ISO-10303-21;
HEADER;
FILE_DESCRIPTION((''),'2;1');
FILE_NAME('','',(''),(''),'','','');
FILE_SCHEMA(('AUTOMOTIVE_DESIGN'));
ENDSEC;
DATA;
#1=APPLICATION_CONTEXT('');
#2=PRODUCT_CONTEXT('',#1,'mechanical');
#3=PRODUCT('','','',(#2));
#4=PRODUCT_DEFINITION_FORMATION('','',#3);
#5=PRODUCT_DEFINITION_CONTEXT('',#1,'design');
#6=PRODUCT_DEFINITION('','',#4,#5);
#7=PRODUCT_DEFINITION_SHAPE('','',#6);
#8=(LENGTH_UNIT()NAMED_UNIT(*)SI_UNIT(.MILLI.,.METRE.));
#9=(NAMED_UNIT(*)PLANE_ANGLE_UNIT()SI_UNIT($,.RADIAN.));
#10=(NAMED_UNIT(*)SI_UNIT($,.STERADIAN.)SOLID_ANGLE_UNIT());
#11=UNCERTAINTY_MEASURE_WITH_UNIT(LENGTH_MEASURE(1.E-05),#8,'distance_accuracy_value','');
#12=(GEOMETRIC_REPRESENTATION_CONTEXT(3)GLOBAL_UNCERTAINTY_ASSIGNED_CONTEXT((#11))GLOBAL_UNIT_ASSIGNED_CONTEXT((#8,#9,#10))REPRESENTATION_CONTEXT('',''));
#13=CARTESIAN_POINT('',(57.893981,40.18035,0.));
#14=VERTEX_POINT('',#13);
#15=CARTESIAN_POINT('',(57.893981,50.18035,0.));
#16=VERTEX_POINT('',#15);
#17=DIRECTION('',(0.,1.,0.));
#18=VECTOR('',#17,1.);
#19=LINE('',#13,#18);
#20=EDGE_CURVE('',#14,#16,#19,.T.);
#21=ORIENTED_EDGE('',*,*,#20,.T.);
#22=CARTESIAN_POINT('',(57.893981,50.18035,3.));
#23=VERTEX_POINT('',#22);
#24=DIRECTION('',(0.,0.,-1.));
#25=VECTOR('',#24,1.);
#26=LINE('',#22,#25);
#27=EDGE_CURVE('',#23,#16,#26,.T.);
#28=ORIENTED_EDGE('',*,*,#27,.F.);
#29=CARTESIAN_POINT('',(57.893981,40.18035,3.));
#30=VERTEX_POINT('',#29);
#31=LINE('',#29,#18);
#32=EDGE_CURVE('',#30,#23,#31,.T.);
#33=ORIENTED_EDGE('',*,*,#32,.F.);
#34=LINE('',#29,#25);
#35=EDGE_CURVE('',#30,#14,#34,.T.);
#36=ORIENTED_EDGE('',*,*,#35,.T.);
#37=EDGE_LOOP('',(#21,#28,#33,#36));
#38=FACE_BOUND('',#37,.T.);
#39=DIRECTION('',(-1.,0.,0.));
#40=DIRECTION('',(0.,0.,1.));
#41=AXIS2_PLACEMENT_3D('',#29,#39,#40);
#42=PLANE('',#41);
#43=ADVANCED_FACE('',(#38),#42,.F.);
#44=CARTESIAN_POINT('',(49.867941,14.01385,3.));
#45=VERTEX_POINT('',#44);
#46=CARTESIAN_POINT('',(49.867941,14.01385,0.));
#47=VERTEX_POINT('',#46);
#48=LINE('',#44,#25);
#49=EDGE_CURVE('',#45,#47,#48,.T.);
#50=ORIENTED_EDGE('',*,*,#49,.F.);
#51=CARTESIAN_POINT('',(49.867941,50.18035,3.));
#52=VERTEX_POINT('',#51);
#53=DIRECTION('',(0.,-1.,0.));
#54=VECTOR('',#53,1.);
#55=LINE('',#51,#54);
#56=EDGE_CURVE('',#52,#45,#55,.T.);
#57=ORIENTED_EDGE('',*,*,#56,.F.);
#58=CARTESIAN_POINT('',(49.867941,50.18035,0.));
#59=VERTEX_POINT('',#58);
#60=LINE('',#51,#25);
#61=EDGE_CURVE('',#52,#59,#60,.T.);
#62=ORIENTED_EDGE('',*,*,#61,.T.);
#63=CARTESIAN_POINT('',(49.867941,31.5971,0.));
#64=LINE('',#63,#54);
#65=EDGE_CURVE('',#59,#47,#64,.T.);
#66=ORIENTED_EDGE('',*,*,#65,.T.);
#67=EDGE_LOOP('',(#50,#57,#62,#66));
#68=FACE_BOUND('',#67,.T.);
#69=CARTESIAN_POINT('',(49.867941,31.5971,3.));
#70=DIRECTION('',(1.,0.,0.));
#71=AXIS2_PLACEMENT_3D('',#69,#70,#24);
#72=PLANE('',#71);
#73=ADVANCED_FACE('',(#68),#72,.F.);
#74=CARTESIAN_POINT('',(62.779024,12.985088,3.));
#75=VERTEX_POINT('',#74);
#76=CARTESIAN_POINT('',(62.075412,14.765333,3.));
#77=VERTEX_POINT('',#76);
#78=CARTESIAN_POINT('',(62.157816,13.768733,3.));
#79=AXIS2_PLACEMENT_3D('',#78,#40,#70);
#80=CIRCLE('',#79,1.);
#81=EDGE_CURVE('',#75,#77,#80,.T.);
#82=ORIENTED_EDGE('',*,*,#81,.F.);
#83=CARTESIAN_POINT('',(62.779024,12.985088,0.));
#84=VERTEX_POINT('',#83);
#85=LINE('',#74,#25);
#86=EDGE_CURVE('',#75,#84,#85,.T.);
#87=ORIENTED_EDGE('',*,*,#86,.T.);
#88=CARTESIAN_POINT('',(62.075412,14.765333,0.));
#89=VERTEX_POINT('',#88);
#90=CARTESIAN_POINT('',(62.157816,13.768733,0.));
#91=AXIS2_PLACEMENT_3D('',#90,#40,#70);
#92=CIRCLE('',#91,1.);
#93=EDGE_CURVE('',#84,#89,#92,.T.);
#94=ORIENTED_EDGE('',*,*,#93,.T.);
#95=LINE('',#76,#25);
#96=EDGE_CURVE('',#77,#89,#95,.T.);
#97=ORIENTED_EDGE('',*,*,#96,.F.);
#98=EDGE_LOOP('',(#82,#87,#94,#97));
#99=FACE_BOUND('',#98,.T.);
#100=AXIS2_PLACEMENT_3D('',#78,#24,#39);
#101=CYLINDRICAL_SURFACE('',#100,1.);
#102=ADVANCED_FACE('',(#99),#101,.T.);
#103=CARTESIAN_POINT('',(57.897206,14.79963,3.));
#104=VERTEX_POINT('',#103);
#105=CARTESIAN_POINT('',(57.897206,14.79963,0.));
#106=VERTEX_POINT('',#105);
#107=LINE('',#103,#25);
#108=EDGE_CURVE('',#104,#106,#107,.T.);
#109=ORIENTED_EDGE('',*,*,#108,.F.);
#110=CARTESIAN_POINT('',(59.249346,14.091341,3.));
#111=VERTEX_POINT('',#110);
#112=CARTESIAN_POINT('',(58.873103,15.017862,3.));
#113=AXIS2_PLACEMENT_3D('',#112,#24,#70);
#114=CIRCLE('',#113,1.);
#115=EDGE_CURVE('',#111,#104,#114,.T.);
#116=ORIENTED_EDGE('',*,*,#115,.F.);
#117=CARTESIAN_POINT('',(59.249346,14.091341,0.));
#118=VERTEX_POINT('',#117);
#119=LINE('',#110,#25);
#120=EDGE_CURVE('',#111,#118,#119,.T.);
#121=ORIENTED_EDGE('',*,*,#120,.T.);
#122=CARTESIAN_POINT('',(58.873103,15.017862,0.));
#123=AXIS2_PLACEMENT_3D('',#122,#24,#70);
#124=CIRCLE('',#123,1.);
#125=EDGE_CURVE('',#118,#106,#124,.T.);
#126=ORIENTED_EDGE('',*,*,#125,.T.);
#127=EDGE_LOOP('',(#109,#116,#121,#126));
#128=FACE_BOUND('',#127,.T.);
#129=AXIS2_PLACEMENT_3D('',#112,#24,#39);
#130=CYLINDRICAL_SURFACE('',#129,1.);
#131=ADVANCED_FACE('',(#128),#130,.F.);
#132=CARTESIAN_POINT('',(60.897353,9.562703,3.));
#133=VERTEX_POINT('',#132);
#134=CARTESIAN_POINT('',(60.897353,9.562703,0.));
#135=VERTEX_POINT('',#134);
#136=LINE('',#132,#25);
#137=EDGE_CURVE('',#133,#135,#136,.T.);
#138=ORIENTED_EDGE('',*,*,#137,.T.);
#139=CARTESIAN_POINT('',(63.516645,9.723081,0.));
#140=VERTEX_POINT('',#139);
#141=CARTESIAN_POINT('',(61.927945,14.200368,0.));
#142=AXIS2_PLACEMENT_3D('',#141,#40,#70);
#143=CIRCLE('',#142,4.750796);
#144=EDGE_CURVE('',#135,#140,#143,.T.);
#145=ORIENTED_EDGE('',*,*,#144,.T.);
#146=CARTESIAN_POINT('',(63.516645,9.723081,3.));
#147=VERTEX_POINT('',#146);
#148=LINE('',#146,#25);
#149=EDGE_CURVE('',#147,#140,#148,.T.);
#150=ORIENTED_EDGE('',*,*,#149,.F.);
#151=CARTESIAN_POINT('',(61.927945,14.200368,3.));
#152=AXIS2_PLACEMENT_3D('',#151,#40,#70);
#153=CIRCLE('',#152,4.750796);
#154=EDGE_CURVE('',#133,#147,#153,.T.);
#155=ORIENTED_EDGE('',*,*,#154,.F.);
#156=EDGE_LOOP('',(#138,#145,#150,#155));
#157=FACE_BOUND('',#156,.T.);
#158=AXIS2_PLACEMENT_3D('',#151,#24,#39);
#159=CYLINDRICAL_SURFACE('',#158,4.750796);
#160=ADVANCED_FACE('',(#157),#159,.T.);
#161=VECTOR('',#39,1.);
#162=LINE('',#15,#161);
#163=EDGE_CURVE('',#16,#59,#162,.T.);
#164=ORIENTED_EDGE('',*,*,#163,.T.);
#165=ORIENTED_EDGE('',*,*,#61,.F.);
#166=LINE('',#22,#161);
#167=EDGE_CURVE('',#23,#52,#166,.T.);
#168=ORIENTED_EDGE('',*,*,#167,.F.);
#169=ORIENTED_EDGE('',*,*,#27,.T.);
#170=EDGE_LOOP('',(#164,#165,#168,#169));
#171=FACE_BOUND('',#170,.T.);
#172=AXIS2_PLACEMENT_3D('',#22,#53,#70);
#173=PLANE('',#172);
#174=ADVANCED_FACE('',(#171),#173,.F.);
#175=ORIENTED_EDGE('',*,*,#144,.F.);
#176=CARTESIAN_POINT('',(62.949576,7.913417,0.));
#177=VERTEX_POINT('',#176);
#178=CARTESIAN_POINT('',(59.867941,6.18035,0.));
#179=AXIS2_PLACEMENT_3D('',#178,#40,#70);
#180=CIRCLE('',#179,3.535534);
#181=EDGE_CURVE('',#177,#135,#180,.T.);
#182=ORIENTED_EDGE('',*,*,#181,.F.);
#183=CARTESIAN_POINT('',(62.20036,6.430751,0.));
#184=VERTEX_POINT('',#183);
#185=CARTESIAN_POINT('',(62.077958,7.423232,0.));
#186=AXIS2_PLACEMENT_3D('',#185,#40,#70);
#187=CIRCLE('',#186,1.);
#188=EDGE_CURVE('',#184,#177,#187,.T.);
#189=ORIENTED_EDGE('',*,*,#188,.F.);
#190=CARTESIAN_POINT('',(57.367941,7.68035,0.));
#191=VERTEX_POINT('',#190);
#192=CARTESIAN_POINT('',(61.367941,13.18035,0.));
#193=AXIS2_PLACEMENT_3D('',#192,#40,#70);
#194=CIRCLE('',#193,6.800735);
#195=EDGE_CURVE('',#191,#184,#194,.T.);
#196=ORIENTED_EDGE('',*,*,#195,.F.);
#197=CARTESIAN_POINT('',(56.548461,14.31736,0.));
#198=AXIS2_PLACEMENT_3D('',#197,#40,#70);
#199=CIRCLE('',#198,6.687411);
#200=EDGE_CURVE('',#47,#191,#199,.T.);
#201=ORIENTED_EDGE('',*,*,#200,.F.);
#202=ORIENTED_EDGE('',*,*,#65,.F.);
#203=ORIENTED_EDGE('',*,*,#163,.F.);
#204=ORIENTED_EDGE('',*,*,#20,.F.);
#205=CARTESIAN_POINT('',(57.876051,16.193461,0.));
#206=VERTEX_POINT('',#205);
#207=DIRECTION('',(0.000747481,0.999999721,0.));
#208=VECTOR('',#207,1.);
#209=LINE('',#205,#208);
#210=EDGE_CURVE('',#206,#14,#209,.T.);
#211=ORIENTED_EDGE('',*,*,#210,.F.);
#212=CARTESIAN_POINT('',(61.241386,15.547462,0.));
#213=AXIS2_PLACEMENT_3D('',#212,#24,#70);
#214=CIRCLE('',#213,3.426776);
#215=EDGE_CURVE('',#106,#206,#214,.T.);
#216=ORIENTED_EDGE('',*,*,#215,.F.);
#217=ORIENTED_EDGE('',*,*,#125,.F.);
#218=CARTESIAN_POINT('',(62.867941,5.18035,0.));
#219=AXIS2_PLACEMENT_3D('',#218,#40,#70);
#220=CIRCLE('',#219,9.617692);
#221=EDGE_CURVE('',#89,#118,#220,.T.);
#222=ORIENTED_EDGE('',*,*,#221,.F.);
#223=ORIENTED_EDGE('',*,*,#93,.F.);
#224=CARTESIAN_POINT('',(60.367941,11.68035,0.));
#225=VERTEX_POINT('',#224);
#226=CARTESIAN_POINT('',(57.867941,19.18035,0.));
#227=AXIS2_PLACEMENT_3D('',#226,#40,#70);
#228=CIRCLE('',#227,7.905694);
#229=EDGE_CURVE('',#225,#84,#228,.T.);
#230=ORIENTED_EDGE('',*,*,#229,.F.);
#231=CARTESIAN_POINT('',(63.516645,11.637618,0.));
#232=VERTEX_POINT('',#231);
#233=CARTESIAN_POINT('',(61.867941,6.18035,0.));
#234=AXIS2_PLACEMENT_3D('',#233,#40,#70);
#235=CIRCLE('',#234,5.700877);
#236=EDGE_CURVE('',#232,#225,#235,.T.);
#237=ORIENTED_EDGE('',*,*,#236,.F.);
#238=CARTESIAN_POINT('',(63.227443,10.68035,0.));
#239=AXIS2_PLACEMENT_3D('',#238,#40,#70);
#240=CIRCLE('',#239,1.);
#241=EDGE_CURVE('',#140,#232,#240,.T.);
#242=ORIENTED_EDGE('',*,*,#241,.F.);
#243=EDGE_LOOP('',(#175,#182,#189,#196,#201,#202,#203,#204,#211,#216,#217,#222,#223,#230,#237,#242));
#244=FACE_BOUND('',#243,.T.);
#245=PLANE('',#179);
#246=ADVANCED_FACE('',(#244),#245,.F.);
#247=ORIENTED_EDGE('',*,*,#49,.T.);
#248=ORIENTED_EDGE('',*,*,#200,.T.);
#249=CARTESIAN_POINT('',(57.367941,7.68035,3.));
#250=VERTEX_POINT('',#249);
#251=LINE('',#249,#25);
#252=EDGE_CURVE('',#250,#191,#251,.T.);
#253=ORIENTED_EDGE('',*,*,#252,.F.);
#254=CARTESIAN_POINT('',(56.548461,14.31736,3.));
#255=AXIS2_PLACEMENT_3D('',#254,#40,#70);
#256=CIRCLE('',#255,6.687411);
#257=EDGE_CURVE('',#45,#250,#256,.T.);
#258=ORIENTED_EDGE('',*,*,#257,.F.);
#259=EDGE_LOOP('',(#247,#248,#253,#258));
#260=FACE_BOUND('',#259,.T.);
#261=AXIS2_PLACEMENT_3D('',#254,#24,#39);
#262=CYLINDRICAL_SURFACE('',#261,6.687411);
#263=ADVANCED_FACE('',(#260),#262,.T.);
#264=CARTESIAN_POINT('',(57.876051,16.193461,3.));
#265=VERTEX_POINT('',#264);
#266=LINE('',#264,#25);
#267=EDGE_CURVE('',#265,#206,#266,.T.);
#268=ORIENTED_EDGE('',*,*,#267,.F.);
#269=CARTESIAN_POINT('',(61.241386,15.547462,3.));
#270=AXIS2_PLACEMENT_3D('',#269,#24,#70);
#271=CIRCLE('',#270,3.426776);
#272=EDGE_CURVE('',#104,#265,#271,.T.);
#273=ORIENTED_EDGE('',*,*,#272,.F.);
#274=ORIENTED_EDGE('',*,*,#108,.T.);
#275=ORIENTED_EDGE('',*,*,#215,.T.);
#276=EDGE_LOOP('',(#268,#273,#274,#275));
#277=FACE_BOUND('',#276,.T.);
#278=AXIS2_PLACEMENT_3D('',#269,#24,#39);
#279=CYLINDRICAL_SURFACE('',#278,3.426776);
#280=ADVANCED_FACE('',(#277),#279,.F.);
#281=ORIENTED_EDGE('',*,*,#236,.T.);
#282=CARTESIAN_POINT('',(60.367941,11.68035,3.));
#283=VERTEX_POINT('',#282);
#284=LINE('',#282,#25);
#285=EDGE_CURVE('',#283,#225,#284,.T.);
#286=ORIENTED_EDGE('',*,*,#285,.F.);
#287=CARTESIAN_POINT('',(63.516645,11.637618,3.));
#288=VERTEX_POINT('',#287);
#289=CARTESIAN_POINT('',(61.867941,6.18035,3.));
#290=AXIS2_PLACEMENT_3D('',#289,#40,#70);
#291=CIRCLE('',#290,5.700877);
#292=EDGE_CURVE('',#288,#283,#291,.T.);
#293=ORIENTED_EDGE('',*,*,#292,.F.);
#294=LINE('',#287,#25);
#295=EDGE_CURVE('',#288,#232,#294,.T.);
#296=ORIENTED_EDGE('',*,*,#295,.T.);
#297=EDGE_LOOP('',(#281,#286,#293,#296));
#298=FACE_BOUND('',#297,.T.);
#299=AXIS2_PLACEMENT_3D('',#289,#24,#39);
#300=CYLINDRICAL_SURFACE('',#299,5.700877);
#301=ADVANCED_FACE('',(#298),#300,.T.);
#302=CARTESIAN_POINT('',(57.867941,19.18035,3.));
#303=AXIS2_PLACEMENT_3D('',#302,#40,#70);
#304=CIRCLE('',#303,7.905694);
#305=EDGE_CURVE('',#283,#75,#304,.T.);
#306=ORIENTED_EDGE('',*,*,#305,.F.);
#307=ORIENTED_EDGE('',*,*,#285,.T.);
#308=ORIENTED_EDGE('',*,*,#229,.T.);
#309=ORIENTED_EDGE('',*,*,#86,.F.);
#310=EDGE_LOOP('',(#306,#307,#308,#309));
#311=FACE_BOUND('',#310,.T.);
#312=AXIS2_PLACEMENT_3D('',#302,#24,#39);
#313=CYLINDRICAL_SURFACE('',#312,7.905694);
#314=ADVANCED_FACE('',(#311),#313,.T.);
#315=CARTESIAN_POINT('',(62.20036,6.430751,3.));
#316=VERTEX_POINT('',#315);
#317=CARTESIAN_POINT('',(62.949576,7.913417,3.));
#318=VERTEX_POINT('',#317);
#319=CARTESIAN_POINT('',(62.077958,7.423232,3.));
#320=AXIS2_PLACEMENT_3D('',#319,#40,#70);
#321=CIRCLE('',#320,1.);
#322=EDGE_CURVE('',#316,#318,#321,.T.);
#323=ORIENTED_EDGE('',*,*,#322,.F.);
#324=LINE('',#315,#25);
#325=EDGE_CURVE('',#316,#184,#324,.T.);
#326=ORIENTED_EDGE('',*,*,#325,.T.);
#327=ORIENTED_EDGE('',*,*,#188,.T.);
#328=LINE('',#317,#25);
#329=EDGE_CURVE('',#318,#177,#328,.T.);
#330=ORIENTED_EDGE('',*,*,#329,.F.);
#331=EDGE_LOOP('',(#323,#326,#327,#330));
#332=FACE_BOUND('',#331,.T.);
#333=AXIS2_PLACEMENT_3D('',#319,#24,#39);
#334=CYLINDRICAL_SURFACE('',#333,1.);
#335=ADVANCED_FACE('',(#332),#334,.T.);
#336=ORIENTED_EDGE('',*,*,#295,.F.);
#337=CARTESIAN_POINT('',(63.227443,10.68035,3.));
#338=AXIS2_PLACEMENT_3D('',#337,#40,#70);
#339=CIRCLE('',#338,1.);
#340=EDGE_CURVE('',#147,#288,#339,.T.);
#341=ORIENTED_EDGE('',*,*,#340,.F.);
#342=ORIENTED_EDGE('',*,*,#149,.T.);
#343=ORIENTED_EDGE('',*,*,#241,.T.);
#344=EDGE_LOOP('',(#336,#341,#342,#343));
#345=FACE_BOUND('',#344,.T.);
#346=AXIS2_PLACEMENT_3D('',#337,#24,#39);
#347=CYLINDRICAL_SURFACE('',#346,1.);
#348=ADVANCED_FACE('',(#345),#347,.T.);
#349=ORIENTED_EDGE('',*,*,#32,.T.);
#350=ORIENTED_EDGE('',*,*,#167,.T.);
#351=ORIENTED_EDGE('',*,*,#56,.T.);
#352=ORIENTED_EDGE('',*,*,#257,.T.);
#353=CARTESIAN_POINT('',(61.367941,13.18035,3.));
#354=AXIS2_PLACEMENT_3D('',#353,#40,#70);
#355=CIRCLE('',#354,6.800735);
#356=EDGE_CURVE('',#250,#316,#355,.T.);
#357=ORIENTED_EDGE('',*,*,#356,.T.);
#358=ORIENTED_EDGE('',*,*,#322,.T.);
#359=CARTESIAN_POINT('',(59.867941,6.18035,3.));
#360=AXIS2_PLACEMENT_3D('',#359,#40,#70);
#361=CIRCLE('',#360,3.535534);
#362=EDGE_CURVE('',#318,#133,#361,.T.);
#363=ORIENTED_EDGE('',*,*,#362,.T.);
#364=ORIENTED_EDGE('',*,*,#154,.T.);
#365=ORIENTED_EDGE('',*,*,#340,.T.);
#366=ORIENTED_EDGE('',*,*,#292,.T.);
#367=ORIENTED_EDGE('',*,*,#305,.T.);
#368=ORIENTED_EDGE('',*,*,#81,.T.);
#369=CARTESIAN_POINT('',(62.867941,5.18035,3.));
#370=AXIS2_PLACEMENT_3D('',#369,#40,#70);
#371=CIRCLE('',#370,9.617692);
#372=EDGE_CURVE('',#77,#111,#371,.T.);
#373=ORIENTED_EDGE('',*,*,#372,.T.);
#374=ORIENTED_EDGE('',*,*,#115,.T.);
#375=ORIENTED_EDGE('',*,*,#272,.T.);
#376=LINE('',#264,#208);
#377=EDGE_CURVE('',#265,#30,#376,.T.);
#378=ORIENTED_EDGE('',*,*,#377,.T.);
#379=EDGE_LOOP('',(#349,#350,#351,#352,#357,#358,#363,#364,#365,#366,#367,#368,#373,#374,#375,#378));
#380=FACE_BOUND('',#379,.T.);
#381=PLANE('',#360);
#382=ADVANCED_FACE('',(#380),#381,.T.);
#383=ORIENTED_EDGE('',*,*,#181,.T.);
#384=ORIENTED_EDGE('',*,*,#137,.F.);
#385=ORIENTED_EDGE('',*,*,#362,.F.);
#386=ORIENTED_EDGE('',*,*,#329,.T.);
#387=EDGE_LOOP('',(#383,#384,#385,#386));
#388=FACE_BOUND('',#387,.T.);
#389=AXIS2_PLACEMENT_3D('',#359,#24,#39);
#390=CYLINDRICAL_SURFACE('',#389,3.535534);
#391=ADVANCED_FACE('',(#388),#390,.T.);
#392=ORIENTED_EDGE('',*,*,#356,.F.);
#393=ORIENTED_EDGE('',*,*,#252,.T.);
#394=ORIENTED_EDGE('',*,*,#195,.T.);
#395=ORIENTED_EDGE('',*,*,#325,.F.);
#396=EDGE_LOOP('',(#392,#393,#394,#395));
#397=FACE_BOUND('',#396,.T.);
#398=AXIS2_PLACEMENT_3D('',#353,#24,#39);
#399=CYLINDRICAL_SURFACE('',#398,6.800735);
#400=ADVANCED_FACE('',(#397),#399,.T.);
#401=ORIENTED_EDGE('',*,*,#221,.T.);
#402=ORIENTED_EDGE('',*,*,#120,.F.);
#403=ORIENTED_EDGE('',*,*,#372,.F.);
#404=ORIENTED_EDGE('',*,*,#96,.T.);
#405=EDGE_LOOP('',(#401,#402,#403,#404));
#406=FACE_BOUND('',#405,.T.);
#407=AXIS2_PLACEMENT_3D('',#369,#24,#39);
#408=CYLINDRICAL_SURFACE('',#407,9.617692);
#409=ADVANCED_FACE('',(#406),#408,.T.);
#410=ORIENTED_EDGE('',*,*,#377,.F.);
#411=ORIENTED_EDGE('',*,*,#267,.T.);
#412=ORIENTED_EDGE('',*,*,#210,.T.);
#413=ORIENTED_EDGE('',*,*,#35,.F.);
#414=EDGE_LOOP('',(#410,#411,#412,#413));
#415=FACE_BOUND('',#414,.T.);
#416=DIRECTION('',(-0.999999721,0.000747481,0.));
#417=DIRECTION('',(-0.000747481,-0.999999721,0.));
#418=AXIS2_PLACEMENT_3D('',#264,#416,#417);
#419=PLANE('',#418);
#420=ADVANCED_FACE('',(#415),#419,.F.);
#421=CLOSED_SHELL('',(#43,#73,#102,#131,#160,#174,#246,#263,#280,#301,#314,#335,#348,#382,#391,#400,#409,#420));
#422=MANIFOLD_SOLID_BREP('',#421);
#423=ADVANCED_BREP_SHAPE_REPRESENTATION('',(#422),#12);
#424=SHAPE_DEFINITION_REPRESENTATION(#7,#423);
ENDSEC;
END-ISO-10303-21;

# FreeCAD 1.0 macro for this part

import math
import FreeCAD as App
import Part
import Sketcher

V = App.Vector
Q = App.Units.Quantity

doc = App.newDocument("Part")
body = doc.addObject("PartDesign::Body", "Body")

# Sketch on XY plane
sketch1 = body.newObject("Sketcher::SketchObject", "Sketch")
sketch1.AttachmentSupport = (doc.getObject("XY_Plane"), [""])
sketch1.MapMode = "FlatFace"
sketch1.addGeometry(Part.LineSegment(V(57.9, 16.2, 0), V(57.9, 40.2, 0)), False)
sketch1.addGeometry(Part.LineSegment(V(57.9, 40.2, 0), V(57.9, 50.2, 0)), False)
sketch1.addGeometry(Part.LineSegment(V(57.9, 50.2, 0), V(49.9, 50.2, 0)), False)
sketch1.addGeometry(Part.LineSegment(V(49.9, 50.2, 0), V(49.9, 14, 0)), False)
sketch1.addGeometry(Part.ArcOfCircle(Part.Circle(V(56.5, 14.3, 0), V(0, 0, 1), 6.7), math.radians(-177), math.radians(-83)), False)
sketch1.addGeometry(Part.ArcOfCircle(Part.Circle(V(61.4, 13.2, 0), V(0, 0, 1), 6.8), math.radians(-126), math.radians(-83)), False)
sketch1.addGeometry(Part.ArcOfCircle(Part.Circle(V(62.1, 7.4, 0), V(0, 0, 1), 1), math.radians(-83), math.radians(29)), False)
sketch1.addGeometry(Part.ArcOfCircle(Part.Circle(V(59.9, 6.2, 0), V(0, 0, 1), 3.5), math.radians(29), math.radians(73)), False)
sketch1.addGeometry(Part.ArcOfCircle(Part.Circle(V(61.9, 14.2, 0), V(0, 0, 1), 4.8), math.radians(-103), math.radians(-70)), False)
sketch1.addGeometry(Part.ArcOfCircle(Part.Circle(V(63.2, 10.7, 0), V(0, 0, 1), 1), math.radians(-73), math.radians(73)), False)
sketch1.addGeometry(Part.ArcOfCircle(Part.Circle(V(61.9, 6.2, 0), V(0, 0, 1), 5.7), math.radians(73), math.radians(105)), False)
sketch1.addGeometry(Part.ArcOfCircle(Part.Circle(V(57.9, 19.2, 0), V(0, 0, 1), 7.9), math.radians(-71.57), math.radians(-51.6)), False)
sketch1.addGeometry(Part.ArcOfCircle(Part.Circle(V(62.2, 13.8, 0), V(0, 0, 1), 1), math.radians(-52), math.radians(95)), False)
sketch1.addGeometry(Part.ArcOfCircle(Part.Circle(V(62.9, 5.2, 0), V(0, 0, 1), 9.6), math.radians(94.73), math.radians(112.1)), False)
sketch1.addGeometry(Part.ArcOfCircle(Part.Circle(V(58.9, 15, 0), V(0, 0, 1), 1), math.radians(-167), math.radians(-68)), False)
sketch1.addGeometry(Part.ArcOfCircle(Part.Circle(V(61.2, 15.5, 0), V(0, 0, 1), 3.4), math.radians(169), math.radians(193)), False)
sketch1.addConstraint(Sketcher.Constraint("Coincident", 0, 2, 1, 1))
sketch1.addConstraint(Sketcher.Constraint("Coincident", 1, 2, 2, 1))
sketch1.addConstraint(Sketcher.Constraint("Coincident", 2, 2, 3, 1))
sketch1.addConstraint(Sketcher.Constraint("Coincident", 3, 2, 4, 1))
sketch1.addConstraint(Sketcher.Constraint("Coincident", 4, 2, 5, 1))
sketch1.addConstraint(Sketcher.Constraint("Tangent", 5, 2, 6, 1))
sketch1.addConstraint(Sketcher.Constraint("Tangent", 6, 2, 7, 1))
sketch1.addConstraint(Sketcher.Constraint("Coincident", 7, 2, 8, 1))
sketch1.addConstraint(Sketcher.Constraint("Coincident", 8, 2, 9, 1))
sketch1.addConstraint(Sketcher.Constraint("Tangent", 9, 2, 10, 1))
sketch1.addConstraint(Sketcher.Constraint("Coincident", 10, 2, 11, 1))
sketch1.addConstraint(Sketcher.Constraint("Tangent", 11, 2, 12, 1))
sketch1.addConstraint(Sketcher.Constraint("Tangent", 12, 2, 13, 1))
sketch1.addConstraint(Sketcher.Constraint("Tangent", 13, 2, 14, 2))
sketch1.addConstraint(Sketcher.Constraint("Tangent", 14, 1, 15, 2))
sketch1.addConstraint(Sketcher.Constraint("Coincident", 15, 1, 0, 1))
sketch1.addConstraint(Sketcher.Constraint("Vertical", 1))
sketch1.addConstraint(Sketcher.Constraint("Horizontal", 2))
sketch1.addConstraint(Sketcher.Constraint("Vertical", 3))
sketch1.addConstraint(Sketcher.Constraint("Equal", 6, 9))
sketch1.addConstraint(Sketcher.Constraint("Equal", 9, 12))
sketch1.addConstraint(Sketcher.Constraint("Equal", 12, 14))
sketch1.addConstraint(Sketcher.Constraint("Horizontal", 7, 3, 10, 3))
sketch1.addConstraint(Sketcher.Constraint("Vertical", 8, 2, 9, 2))
sketch1.addConstraint(Sketcher.Constraint("Radius", 6, Q("1 mm")))
sketch1.addConstraint(Sketcher.Constraint("DistanceY", 1, 1, 1, 2, Q("10 mm")))
sketch1.addConstraint(Sketcher.Constraint("DistanceY", 7, 3, 5, 3, Q("7 mm")))
sketch1.addConstraint(Sketcher.Constraint("DistanceX", 7, 3, 10, 3, Q("2 mm")))
sketch1.addConstraint(Sketcher.Constraint("DistanceY", 5, 3, 11, 3, Q("6 mm")))
sketch1.addConstraint(Sketcher.Constraint("DistanceX", 10, 3, 13, 3, Q("1 mm")))
sketch1.addConstraint(Sketcher.Constraint("DistanceY", 13, 3, 10, 3, Q("1 mm")))
sketch1.addConstraint(Sketcher.Constraint("DistanceY", 11, 3, 0, 2, Q("21 mm")))
sketch1.addConstraint(Sketcher.Constraint("DistanceX", 2, 2, 11, 3, Q("8 mm")))
sketch1.addConstraint(Sketcher.Constraint("DistanceY", 4, 2, 9, 3, Q("3 mm")))
sketch1.addConstraint(Sketcher.Constraint("DistanceX", 10, 2, 5, 3, Q("1 mm")))
sketch1.addConstraint(Sketcher.Constraint("DistanceY", 9, 3, 10, 2, Q("1 mm")))
sketch1.addConstraint(Sketcher.Constraint("DistanceX", 7, 3, 5, 3, Q("1.5 mm")))
sketch1.addConstraint(Sketcher.Constraint("DistanceY", 9, 3, 5, 3, Q("2.5 mm")))
sketch1.addConstraint(Sketcher.Constraint("DistanceX", 11, 3, 5, 3, Q("3.5 mm")))
sketch1.addConstraint(Sketcher.Constraint("DistanceX", 4, 2, 7, 3, Q("2.5 mm")))
sketch1.addConstraint(Sketcher.Constraint("Radius", 4, Q("6.687411 mm")))
sketch1.addConstraint(Sketcher.Constraint("DistanceY", 3, 2, 3, 1, Q("36.1665 mm")))
sketch1.addConstraint(Sketcher.Constraint("Radius", 7, Q("3.535534 mm")))
sketch1.addConstraint(Sketcher.Constraint("Radius", 8, Q("4.750796 mm")))
sketch1.addConstraint(Sketcher.Constraint("Radius", 13, Q("9.617692 mm")))
sketch1.addConstraint(Sketcher.Constraint("Radius", 15, Q("3.426776 mm")))
sketch1.addConstraint(Sketcher.Constraint("DistanceX", 2, 2, 2, 1, Q("8.02604 mm")))
sketch1.addConstraint(Sketcher.Constraint("DistanceY", 4, 3, 14, 3, Q("0.700502 mm")))
sketch1.addConstraint(Sketcher.Constraint("DistanceY", 14, 3, 15, 3, Q("0.5296 mm")))
sketch1.addConstraint(Sketcher.Constraint("DistanceX", 8, 3, 9, 2, Q("1.5887 mm")))
sketch1.addConstraint(Sketcher.Constraint("DistanceY", 14, 3, 15, 1, Q("1.175599 mm")))
sketch1.addConstraint(Sketcher.Constraint("DistanceX", -1, 1, 4, 3, Q("56.548461 mm")))
sketch1.addConstraint(Sketcher.Constraint("DistanceY", -1, 1, 4, 3, Q("14.31736 mm")))
pad1 = body.newObject("PartDesign::Pad", "Pad")
pad1.Profile = sketch1
pad1.Length = 3

doc.recompute()
